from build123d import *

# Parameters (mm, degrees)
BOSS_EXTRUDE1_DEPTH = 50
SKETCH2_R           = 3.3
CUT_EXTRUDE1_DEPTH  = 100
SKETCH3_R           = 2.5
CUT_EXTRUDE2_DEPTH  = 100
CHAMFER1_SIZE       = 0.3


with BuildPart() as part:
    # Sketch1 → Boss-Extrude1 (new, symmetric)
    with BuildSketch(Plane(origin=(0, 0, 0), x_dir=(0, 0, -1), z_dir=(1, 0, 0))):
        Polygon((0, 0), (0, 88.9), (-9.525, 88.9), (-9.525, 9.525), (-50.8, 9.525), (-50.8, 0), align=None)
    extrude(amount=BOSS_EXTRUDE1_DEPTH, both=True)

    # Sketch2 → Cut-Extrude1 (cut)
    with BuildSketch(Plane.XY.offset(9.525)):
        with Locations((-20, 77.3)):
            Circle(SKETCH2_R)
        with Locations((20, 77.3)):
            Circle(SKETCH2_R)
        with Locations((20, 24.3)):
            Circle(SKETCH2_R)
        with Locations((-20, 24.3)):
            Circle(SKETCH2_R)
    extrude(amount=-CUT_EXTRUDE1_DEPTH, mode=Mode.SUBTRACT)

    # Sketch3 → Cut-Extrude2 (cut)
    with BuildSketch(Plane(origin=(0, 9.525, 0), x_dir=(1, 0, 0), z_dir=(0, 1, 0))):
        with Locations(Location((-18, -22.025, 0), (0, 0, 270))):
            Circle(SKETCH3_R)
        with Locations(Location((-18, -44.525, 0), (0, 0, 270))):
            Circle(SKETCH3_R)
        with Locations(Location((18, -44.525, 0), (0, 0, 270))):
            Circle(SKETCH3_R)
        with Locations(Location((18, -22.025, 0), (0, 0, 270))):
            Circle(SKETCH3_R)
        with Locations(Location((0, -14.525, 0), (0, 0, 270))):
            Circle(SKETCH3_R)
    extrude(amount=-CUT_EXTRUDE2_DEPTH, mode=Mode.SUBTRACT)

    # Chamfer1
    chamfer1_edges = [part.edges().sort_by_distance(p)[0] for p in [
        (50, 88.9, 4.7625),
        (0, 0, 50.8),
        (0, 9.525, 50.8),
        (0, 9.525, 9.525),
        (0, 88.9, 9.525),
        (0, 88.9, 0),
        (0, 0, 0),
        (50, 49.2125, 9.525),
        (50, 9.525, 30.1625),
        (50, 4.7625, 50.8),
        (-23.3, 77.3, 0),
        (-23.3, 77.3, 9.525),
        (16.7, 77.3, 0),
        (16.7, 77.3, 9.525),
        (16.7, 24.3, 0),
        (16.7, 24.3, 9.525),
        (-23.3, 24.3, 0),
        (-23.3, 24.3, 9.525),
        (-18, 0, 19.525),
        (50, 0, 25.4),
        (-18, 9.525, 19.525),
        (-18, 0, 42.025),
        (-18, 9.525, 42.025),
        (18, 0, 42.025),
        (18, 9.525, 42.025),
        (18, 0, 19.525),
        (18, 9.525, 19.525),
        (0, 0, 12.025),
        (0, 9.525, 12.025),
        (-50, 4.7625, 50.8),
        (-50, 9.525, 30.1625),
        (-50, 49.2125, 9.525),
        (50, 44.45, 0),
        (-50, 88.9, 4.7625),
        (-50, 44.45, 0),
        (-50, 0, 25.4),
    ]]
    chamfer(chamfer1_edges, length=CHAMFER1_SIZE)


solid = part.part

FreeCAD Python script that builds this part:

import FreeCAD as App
import Part
import Sketcher
from FreeCAD import Vector

doc = App.newDocument("Part")
body = doc.addObject("PartDesign::Body", "Body")

# Sketch on YZ plane
sketch1 = body.newObject("Sketcher::SketchObject", "Sketch")
sketch1.AttachmentSupport = (doc.getObject("YZ_Plane"), [""])
sketch1.MapMode = "FlatFace"
sketch1.addGeometry(Part.LineSegment(Vector(0, 0, 0), Vector(88.9, 0, 0)), False)
sketch1.addGeometry(Part.LineSegment(Vector(88.9, 0, 0), Vector(88.9, 9.525, 0)), False)
sketch1.addGeometry(Part.LineSegment(Vector(88.9, 9.525, 0), Vector(9.525, 9.525, 0)), False)
sketch1.addGeometry(Part.LineSegment(Vector(9.525, 9.525, 0), Vector(9.525, 50.8, 0)), False)
sketch1.addGeometry(Part.LineSegment(Vector(9.525, 50.8, 0), Vector(0, 50.8, 0)), False)
sketch1.addGeometry(Part.LineSegment(Vector(0, 50.8, 0), Vector(0, 0, 0)), False)
sketch1.addConstraint(Sketcher.Constraint("Coincident", 0, 2, 1, 1))
sketch1.addConstraint(Sketcher.Constraint("Coincident", 1, 2, 2, 1))
sketch1.addConstraint(Sketcher.Constraint("Coincident", 2, 2, 3, 1))
sketch1.addConstraint(Sketcher.Constraint("Coincident", 3, 2, 4, 1))
sketch1.addConstraint(Sketcher.Constraint("Coincident", 4, 2, 5, 1))
sketch1.addConstraint(Sketcher.Constraint("Coincident", 5, 2, 0, 1))
sketch1.addConstraint(Sketcher.Constraint("Horizontal", 0))
sketch1.addConstraint(Sketcher.Constraint("Vertical", 1))
sketch1.addConstraint(Sketcher.Constraint("Horizontal", 2))
sketch1.addConstraint(Sketcher.Constraint("Vertical", 3))
sketch1.addConstraint(Sketcher.Constraint("Horizontal", 4))
sketch1.addConstraint(Sketcher.Constraint("Vertical", 5))
sketch1.addConstraint(Sketcher.Constraint("Coincident", 5, 2, -1, 1))
sketch1.addConstraint(Sketcher.Constraint("Equal", 4, 1))
sketch1.addConstraint(Sketcher.Constraint("DistanceX", 0, 1, 0, 2, 88.9))
sketch1.addConstraint(Sketcher.Constraint("DistanceY", 5, 2, 5, 1, 50.8))
sketch1.addConstraint(Sketcher.Constraint("DistanceX", 2, 2, 2, 1, 79.375))
pad1 = body.newObject("PartDesign::Pad", "Pad")
pad1.Profile = sketch1
pad1.Length = 100
pad1.Midplane = True

# Sketch on XY plane
sketch2 = body.newObject("Sketcher::SketchObject", "Sketch001")
sketch2.AttachmentSupport = (doc.getObject("XY_Plane"), [""])
sketch2.MapMode = "FlatFace"
sketch2.AttachmentOffset = App.Placement(Vector(0, 0, 9.525), App.Rotation())
sketch2.addGeometry(Part.Circle(Vector(-20, 77.3, 0), Vector(0, 0, 1), 3.3), False)
sketch2.addGeometry(Part.Circle(Vector(20, 77.3, 0), Vector(0, 0, 1), 3.3), False)
sketch2.addGeometry(Part.Circle(Vector(20, 24.3, 0), Vector(0, 0, 1), 3.3), False)
sketch2.addGeometry(Part.Circle(Vector(-20, 24.3, 0), Vector(0, 0, 1), 3.3), False)
sketch2.addConstraint(Sketcher.Constraint("Equal", 0, 1))
sketch2.addConstraint(Sketcher.Constraint("Equal", 1, 2))
sketch2.addConstraint(Sketcher.Constraint("Equal", 2, 3))
sketch2.addConstraint(Sketcher.Constraint("Symmetric", 0, 3, 1, 3, -2))
sketch2.addConstraint(Sketcher.Constraint("Symmetric", 2, 3, 3, 3, -2))
sketch2.addConstraint(Sketcher.Constraint("Vertical", 1, 3, 2, 3))
sketch2.addConstraint(Sketcher.Constraint("Diameter", 0, 6.6))
sketch2.addConstraint(Sketcher.Constraint("DistanceX", 0, 3, -1, 1, 20.0))
sketch2.addConstraint(Sketcher.Constraint("DistanceY", 2, 3, 1, 3, 53.0))
sketch2.addConstraint(Sketcher.Constraint("DistanceY", -1, 1, 0, 3, 77.3))
pocket1 = body.newObject("PartDesign::Pocket", "Pocket")
pocket1.Profile = sketch2
pocket1.Length = 100

# Sketch on XZ plane
sketch3 = body.newObject("Sketcher::SketchObject", "Sketch002")
sketch3.AttachmentSupport = (doc.getObject("XZ_Plane"), [""])
sketch3.MapMode = "FlatFace"
sketch3.AttachmentOffset = App.Placement(Vector(0, 0, -9.525), App.Rotation())
sketch3.addGeometry(Part.Circle(Vector(-18, 22.025, 0), Vector(0, 0, 1), 2.5), False)
sketch3.addGeometry(Part.Circle(Vector(-18, 44.525, 0), Vector(0, 0, 1), 2.5), False)
sketch3.addGeometry(Part.Circle(Vector(18, 44.525, 0), Vector(0, 0, 1), 2.5), False)
sketch3.addGeometry(Part.Circle(Vector(18, 22.025, 0), Vector(0, 0, 1), 2.5), False)
sketch3.addGeometry(Part.Circle(Vector(0, 14.525, 0), Vector(0, 0, 1), 2.5), False)
sketch3.addConstraint(Sketcher.Constraint("Equal", 0, 1))
sketch3.addConstraint(Sketcher.Constraint("Equal", 1, 2))
sketch3.addConstraint(Sketcher.Constraint("Equal", 2, 3))
sketch3.addConstraint(Sketcher.Constraint("Equal", 3, 4))
sketch3.addConstraint(Sketcher.Constraint("Symmetric", 1, 3, 2, 3, -2))
sketch3.addConstraint(Sketcher.Constraint("Symmetric", 0, 3, 3, 3, -2))
sketch3.addConstraint(Sketcher.Constraint("PointOnObject", 4, 3, -2))
sketch3.addConstraint(Sketcher.Constraint("Vertical", 0, 3, 1, 3))
sketch3.addConstraint(Sketcher.Constraint("Diameter", 0, 5.0))
sketch3.addConstraint(Sketcher.Constraint("DistanceX", 0, 3, -1, 1, 18.0))
sketch3.addConstraint(Sketcher.Constraint("DistanceY", 4, 3, 1, 3, 30.0))
sketch3.addConstraint(Sketcher.Constraint("DistanceY", 0, 3, 1, 3, 22.5))
sketch3.addConstraint(Sketcher.Constraint("DistanceY", -1, 1, 0, 3, 22.025))
pocket2 = body.newObject("PartDesign::Pocket", "Pocket001")
pocket2.Profile = sketch3
pocket2.Length = 100
pocket2.Reversed = True
doc.recompute()

chamfer = body.newObject("PartDesign::Chamfer", "Chamfer")
chamfer.Base = (pocket2, ["Edge1"])
chamfer.UseAllEdges = True
chamfer.Size = 0.3

doc.recompute()
